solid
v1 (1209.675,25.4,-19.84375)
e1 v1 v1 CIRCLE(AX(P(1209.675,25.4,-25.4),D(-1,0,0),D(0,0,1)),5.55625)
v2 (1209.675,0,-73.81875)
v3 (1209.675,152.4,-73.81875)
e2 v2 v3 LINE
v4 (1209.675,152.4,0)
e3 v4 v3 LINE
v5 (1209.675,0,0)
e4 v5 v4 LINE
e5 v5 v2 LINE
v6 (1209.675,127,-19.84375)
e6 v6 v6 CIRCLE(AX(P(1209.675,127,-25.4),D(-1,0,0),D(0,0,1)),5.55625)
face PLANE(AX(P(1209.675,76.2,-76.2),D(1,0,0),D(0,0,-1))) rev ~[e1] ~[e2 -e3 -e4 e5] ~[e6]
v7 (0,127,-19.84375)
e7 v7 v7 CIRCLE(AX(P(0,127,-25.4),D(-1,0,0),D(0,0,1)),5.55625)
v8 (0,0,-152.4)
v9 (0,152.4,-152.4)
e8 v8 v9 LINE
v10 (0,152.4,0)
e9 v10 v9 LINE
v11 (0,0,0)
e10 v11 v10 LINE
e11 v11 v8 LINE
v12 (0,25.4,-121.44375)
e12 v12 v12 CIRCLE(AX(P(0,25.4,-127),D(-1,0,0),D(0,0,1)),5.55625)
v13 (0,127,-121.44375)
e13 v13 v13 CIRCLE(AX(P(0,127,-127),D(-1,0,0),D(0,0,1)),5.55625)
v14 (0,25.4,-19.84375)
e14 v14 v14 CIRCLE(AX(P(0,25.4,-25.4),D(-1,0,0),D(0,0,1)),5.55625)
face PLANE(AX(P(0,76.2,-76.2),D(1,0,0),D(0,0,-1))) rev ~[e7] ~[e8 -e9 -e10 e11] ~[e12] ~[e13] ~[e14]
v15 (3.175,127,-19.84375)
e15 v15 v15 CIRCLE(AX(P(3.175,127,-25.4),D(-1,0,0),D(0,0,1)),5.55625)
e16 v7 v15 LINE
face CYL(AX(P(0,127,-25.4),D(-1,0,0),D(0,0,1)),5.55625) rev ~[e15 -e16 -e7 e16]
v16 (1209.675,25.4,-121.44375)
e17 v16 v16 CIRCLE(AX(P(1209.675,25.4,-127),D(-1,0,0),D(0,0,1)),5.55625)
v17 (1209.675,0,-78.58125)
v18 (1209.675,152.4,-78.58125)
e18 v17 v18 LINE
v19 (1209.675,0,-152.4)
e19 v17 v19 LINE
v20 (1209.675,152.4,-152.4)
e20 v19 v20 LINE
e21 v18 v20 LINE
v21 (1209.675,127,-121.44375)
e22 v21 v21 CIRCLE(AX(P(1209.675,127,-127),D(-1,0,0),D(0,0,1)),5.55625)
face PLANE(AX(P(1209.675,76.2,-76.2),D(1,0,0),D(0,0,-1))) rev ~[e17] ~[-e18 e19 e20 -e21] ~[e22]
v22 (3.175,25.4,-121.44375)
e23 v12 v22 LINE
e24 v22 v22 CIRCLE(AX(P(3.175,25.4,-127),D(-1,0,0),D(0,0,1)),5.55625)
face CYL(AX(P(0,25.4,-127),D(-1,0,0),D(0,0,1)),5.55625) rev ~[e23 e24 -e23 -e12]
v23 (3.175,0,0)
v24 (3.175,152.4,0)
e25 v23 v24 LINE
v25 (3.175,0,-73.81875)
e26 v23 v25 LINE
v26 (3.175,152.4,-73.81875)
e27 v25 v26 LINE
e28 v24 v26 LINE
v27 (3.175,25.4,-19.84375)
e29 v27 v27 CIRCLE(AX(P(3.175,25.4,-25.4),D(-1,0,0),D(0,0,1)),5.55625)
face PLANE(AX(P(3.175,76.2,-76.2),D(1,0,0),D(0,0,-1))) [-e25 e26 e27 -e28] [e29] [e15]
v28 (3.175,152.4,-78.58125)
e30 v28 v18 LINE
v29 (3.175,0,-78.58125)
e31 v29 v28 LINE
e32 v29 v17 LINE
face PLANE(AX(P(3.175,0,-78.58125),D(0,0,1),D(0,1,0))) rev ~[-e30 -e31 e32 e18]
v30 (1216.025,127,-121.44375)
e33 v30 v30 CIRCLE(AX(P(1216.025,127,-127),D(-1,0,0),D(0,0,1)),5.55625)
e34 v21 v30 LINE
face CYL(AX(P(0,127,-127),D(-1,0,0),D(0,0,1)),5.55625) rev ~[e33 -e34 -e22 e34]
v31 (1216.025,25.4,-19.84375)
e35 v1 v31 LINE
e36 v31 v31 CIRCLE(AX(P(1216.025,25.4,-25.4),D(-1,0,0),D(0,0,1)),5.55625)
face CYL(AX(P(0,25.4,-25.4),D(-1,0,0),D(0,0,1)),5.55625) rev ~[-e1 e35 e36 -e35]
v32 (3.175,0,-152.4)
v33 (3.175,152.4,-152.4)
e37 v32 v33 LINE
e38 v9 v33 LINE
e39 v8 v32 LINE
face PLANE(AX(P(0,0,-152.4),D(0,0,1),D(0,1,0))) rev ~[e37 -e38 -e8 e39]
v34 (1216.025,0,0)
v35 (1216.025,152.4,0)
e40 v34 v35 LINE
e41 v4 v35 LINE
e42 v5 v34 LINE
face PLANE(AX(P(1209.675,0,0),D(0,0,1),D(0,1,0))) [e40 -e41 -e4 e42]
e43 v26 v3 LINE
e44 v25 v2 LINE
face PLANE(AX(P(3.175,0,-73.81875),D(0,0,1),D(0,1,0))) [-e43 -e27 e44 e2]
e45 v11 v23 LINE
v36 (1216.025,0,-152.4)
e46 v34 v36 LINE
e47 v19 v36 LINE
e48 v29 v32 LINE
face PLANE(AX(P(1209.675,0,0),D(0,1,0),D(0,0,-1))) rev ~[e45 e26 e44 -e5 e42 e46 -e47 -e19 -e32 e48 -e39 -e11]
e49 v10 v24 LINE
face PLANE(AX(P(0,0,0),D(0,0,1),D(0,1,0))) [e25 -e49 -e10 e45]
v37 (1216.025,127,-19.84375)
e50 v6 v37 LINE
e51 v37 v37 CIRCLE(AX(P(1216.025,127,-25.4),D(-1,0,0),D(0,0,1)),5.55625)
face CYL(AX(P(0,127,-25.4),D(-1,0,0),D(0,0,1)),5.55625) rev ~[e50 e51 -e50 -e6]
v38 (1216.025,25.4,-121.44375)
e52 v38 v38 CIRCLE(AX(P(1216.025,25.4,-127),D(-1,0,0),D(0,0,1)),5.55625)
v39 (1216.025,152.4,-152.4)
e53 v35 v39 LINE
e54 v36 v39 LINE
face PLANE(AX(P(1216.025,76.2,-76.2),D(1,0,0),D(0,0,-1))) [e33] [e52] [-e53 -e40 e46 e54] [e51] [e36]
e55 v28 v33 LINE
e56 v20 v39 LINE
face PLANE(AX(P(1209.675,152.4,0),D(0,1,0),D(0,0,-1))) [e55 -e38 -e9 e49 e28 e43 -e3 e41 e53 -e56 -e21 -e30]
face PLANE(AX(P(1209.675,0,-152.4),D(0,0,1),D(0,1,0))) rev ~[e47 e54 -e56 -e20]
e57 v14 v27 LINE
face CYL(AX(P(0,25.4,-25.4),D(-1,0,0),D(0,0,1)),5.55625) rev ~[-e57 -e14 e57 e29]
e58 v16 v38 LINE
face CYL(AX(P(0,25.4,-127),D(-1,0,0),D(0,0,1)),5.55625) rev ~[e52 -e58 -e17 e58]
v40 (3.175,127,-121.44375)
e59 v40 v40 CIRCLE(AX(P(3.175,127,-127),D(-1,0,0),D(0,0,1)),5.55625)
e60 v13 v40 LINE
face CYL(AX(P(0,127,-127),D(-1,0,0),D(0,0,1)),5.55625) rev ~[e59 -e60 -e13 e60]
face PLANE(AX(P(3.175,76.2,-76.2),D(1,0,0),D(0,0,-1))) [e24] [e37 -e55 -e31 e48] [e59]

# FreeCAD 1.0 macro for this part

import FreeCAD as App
import Part
import Sketcher
Q = App.Units.Quantity


def add_polygon(sketch, points):
    """Adds a closed chain of lines whose ends are joined by coincident constraints."""
    first, n = sketch.GeometryCount, len(points)
    for a, b in zip(points, points[1:] + points[:1]):
        sketch.addGeometry(Part.LineSegment(App.Vector(*a, 0), App.Vector(*b, 0)), False)
    for i in range(n):
        sketch.addConstraint(Sketcher.Constraint("Coincident", first + i, 2, first + (i + 1) % n, 1))

doc = App.newDocument("Part")
params = doc.addObject("Spreadsheet::Sheet", "Params")
for row, (alias, value) in enumerate([
    ("sketch1_width", "6 in"),
    ("pad1_length", "0.125 in"),
    ("sketch2_width", "6 in"),
    ("sketch2_height", "0.1875 in"),
    ("pad2_length", "47.5 in"),
    ("sketch3_width", "6 in"),
    ("pad3_length", "0.25 in"),
    ("sketch4_diameter", "0.4375 in"),
    ("pocket1_length", "48 in"),
], start=1):
    params.set(f"A{row}", alias)
    params.set(f"B{row}", "=" + value)
    params.setAlias(f"B{row}", alias)

body = doc.addObject("PartDesign::Body", "Body")

sketch1 = body.newObject("Sketcher::SketchObject", "Sketch")
sketch1.AttachmentSupport = (doc.getObject("YZ_Plane"), [""])
sketch1.MapMode = "FlatFace"
add_polygon(sketch1, [(152.4, 0), (0, 0), (0, -152.4), (152.4, -152.4)])
sketch1.addConstraint([
    Sketcher.Constraint("Horizontal", 0),
    Sketcher.Constraint("Vertical", 1),
    Sketcher.Constraint("Horizontal", 2),
    Sketcher.Constraint("Vertical", 3),
    Sketcher.Constraint("Coincident", 0, 2, -1, 1),
    Sketcher.Constraint("Equal", 2, 1),
    Sketcher.Constraint("DistanceX", 0, 2, 0, 1, Q("6 in")),
])
sketch1.setExpression("Constraints[10]", "Params.sketch1_width")
pad1 = body.newObject("PartDesign::Pad", "Pad")
pad1.Profile = sketch1
pad1.setExpression("Length", "Params.pad1_length")

sketch2 = body.newObject("Sketcher::SketchObject", "Sketch001")
sketch2.AttachmentSupport = (doc.getObject("YZ_Plane"), [""])
sketch2.MapMode = "FlatFace"
sketch2.AttachmentOffset = App.Placement(App.Vector(0, 0, 0.125 * 25.4), App.Rotation())
add_polygon(sketch2, [(152.4, -73.81875), (0, -73.81875), (0, -78.58125), (152.4, -78.58125)])
sketch2.addConstraint([
    Sketcher.Constraint("Horizontal", 0),
    Sketcher.Constraint("Vertical", 1),
    Sketcher.Constraint("Horizontal", 2),
    Sketcher.Constraint("Vertical", 3),
    Sketcher.Constraint("PointOnObject", 0, 2, -2),
    Sketcher.Constraint("DistanceX", 0, 2, 0, 1, Q("6 in")),
    Sketcher.Constraint("DistanceY", 1, 2, 1, 1, Q("0.1875 in")),
    Sketcher.Constraint("DistanceY", 0, 2, -1, 1, Q("2.90625 in")),
])
sketch2.setExpression("Constraints[9]", "Params.sketch2_width")
sketch2.setExpression("Constraints[10]", "Params.sketch2_height")
pad2 = body.newObject("PartDesign::Pad", "Pad001")
pad2.Profile = sketch2
pad2.setExpression("Length", "Params.pad2_length")

sketch3 = body.newObject("Sketcher::SketchObject", "Sketch002")
sketch3.AttachmentSupport = (doc.getObject("YZ_Plane"), [""])
sketch3.MapMode = "FlatFace"
sketch3.AttachmentOffset = App.Placement(App.Vector(0, 0, 47.625 * 25.4), App.Rotation())
add_polygon(sketch3, [(152.4, 0), (0, 0), (0, -152.4), (152.4, -152.4)])
sketch3.addConstraint([
    Sketcher.Constraint("Horizontal", 0),
    Sketcher.Constraint("Vertical", 1),
    Sketcher.Constraint("Horizontal", 2),
    Sketcher.Constraint("Vertical", 3),
    Sketcher.Constraint("Coincident", 0, 2, -1, 1),
    Sketcher.Constraint("Equal", 2, 1),
    Sketcher.Constraint("DistanceX", 0, 2, 0, 1, Q("6 in")),
])
sketch3.setExpression("Constraints[10]", "Params.sketch3_width")
pad3 = body.newObject("PartDesign::Pad", "Pad002")
pad3.Profile = sketch3
pad3.setExpression("Length", "Params.pad3_length")

sketch4 = body.newObject("Sketcher::SketchObject", "Sketch003")
sketch4.AttachmentSupport = (doc.getObject("YZ_Plane"), [""])
sketch4.MapMode = "FlatFace"
sketch4.addGeometry([
    Part.Circle(App.Vector(127, -127, 0), App.Vector(0, 0, 1), 5.55625),
    Part.Circle(App.Vector(127, -25.4, 0), App.Vector(0, 0, 1), 5.55625),
    Part.Circle(App.Vector(25.4, -25.4, 0), App.Vector(0, 0, 1), 5.55625),
    Part.Circle(App.Vector(25.4, -127, 0), App.Vector(0, 0, 1), 5.55625),
], False)
sketch4.addConstraint([
    Sketcher.Constraint("Equal", 0, 1),
    Sketcher.Constraint("Equal", 1, 2),
    Sketcher.Constraint("Equal", 2, 3),
    Sketcher.Constraint("Horizontal", 1, 3, 2, 3),
    Sketcher.Constraint("Horizontal", 0, 3, 3, 3),
    Sketcher.Constraint("Vertical", 0, 3, 1, 3),
    Sketcher.Constraint("Vertical", 2, 3, 3, 3),
    Sketcher.Constraint("Diameter", 0, Q("0.4375 in")),
    Sketcher.Constraint("DistanceX", -1, 1, 0, 3, Q("5 in")),
    Sketcher.Constraint("DistanceY", 0, 3, -1, 1, Q("5 in")),
    Sketcher.Constraint("DistanceY", 1, 3, -1, 1, Q("1 in")),
    Sketcher.Constraint("DistanceX", -1, 1, 2, 3, Q("1 in")),
])
sketch4.setExpression("Constraints[7]", "Params.sketch4_diameter")
pocket1 = body.newObject("PartDesign::Pocket", "Pocket")
pocket1.Profile = sketch4
pocket1.setExpression("Length", "Params.pocket1_length")
pocket1.Reversed = True

doc.recompute()
